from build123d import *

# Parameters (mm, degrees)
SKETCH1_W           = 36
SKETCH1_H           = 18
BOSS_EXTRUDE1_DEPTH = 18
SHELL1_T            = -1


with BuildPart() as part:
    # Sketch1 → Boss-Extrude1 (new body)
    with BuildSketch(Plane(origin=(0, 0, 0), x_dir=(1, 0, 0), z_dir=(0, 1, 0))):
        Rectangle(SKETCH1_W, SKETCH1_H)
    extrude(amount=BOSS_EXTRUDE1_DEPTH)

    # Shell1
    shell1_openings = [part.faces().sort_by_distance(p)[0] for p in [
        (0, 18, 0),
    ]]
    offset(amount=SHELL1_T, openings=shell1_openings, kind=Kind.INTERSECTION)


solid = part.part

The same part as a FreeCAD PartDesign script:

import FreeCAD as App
import Part
import Sketcher

V = App.Vector
Q = App.Units.Quantity


def faces_at(feature, points):
    """Names of the faces that lie closest to the given points."""
    faces = feature.Shape.Faces
    near = lambda p: min(range(len(faces)), key=lambda i: faces[i].distToShape(Part.Vertex(*p))[0])
    return sorted({f"Face{near(p) + 1}" for p in points})

doc = App.newDocument("Part")
body = doc.addObject("PartDesign::Body", "Body")

sketch1 = doc.addObject("Sketcher::SketchObject", "Sketch")
body.addObject(sketch1)
sketch1.AttachmentSupport = (doc.XZ_Plane, [""])
sketch1.MapMode = "FlatFace"
sketch1.addGeometry([
    Part.LineSegment(V(-18, -9, 0), V(-18, 9, 0)),
    Part.LineSegment(V(-18, 9, 0), V(18, 9, 0)),
    Part.LineSegment(V(18, 9, 0), V(18, -9, 0)),
    Part.LineSegment(V(18, -9, 0), V(-18, -9, 0)),
], False)
sketch1.addConstraint([
    Sketcher.Constraint("Coincident", 0, 2, 1, 1),
    Sketcher.Constraint("Coincident", 1, 2, 2, 1),
    Sketcher.Constraint("Coincident", 2, 2, 3, 1),
    Sketcher.Constraint("Coincident", 3, 2, 0, 1),
    Sketcher.Constraint("Vertical", 0),
    Sketcher.Constraint("Horizontal", 1),
    Sketcher.Constraint("Vertical", 2),
    Sketcher.Constraint("Horizontal", 3),
    Sketcher.Constraint("Symmetric", 0, 2, 2, 2, -1, 1),
    Sketcher.Constraint("DistanceX", 1, 1, 1, 2, Q("36 mm")),
    Sketcher.Constraint("DistanceY", 0, 1, 0, 2, Q("18 mm")),
])
pad1 = doc.addObject("PartDesign::Pad", "Pad")
body.addObject(pad1)
pad1.Profile = sketch1
pad1.Length = 18
pad1.Reversed = True
doc.recompute()

thickness = doc.addObject("PartDesign::Thickness", "Thickness")
body.addObject(thickness)
thickness.Base = (pad1, faces_at(pad1, [(0, 18, 0)]))
thickness.Value = 1
thickness.Reversed = True
thickness.Join = "Intersection"

doc.recompute()
